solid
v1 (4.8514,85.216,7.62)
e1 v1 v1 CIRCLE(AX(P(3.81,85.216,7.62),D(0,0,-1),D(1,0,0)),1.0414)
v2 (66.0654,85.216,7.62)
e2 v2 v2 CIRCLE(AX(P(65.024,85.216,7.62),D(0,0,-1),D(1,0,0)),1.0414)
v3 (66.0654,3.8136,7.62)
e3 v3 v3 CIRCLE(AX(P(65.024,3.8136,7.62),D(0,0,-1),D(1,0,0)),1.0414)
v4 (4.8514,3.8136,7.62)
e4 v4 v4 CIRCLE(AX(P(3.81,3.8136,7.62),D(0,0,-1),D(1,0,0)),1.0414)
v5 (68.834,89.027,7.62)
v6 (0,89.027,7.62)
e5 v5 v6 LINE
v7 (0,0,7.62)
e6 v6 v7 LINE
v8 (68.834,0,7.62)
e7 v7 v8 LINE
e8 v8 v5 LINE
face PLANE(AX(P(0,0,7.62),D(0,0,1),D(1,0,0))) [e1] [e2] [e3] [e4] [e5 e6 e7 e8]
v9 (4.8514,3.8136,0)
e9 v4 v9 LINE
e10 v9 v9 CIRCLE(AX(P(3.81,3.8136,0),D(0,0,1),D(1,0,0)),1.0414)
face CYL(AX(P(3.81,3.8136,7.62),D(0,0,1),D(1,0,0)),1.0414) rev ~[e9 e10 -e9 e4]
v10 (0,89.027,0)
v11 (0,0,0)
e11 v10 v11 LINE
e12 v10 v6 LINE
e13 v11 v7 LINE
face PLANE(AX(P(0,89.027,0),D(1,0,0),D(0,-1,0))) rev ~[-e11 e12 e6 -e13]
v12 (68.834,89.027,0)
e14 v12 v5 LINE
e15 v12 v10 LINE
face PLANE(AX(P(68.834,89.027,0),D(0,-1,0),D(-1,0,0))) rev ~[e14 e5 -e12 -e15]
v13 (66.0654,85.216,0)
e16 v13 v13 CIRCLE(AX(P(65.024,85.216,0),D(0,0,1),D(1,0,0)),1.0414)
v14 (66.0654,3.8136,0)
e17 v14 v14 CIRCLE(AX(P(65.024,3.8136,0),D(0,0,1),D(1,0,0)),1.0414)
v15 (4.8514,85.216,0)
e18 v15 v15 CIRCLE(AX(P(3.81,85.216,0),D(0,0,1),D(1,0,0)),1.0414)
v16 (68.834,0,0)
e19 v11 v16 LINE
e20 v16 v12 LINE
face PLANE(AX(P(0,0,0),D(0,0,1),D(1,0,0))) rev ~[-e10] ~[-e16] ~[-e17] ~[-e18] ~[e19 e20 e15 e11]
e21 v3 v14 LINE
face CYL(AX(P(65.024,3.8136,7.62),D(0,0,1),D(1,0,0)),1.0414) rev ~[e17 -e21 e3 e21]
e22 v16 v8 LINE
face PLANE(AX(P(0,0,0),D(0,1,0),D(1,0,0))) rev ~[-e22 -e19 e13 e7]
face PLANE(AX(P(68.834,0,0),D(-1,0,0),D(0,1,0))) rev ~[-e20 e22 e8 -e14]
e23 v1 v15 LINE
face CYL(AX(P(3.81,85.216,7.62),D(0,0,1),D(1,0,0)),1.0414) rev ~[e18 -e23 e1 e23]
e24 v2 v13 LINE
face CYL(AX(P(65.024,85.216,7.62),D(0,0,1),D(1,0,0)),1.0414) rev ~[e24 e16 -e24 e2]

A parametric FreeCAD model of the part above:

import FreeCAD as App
import Part
import Sketcher

V = App.Vector
Q = App.Units.Quantity


def add_polygon(sketch, points):
    """Adds a closed chain of lines whose ends are joined by coincident constraints."""
    first, n = sketch.GeometryCount, len(points)
    for a, b in zip(points, points[1:] + points[:1]):
        sketch.addGeometry(Part.LineSegment(App.Vector(*a, 0), App.Vector(*b, 0)), False)
    for i in range(n):
        sketch.addConstraint(Sketcher.Constraint("Coincident", first + i, 2, first + (i + 1) % n, 1))

doc = App.newDocument("Part")
body = doc.addObject("PartDesign::Body", "Body")

# Sketch on XY plane
sketch1 = body.newObject("Sketcher::SketchObject", "Sketch")
sketch1.AttachmentSupport = (doc.getObject("XY_Plane"), [""])
sketch1.MapMode = "FlatFace"
add_polygon(sketch1, [(0, 89.027), (0, 0), (68.834, 0), (68.834, 89.027)])  # lines 0-3
sketch1.addConstraint([
    Sketcher.Constraint("Vertical", 0),
    Sketcher.Constraint("Horizontal", 1),
    Sketcher.Constraint("Vertical", 2),
    Sketcher.Constraint("Horizontal", 3),
    Sketcher.Constraint("Coincident", 0, 2, -1, 1),
    Sketcher.Constraint("DistanceX", 1, 1, 1, 2, Q("2.71 in")),
    Sketcher.Constraint("DistanceY", 0, 2, 0, 1, Q("3.505 in")),
])
pad1 = body.newObject("PartDesign::Pad", "Pad")
pad1.Profile = sketch1
pad1.Length = Q("0.3 in")

# Sketch on XY plane
sketch2 = body.newObject("Sketcher::SketchObject", "Sketch001")
sketch2.AttachmentSupport = (doc.getObject("XY_Plane"), [""])
sketch2.MapMode = "FlatFace"
sketch2.AttachmentOffset = App.Placement(V(0, 0, 0.3 * 25.4), App.Rotation())
sketch2.addGeometry(Part.Circle(V(3.81, 85.216, 0), V(0, 0, 1), 1.0414), False)
sketch2.addConstraint([
    Sketcher.Constraint("Diameter", 0, Q("0.082 in")),
    Sketcher.Constraint("DistanceX", -1, 1, 0, 3, Q("0.15 in")),
    Sketcher.Constraint("DistanceY", -1, 1, 0, 3, 85.216),
])
pocket1 = body.newObject("PartDesign::Pocket", "Pocket")
pocket1.Profile = sketch2
pocket1.Length = Q("0.3 in")

# Sketch on XY plane
sketch3 = body.newObject("Sketcher::SketchObject", "Sketch002")
sketch3.AttachmentSupport = (doc.getObject("XY_Plane"), [""])
sketch3.MapMode = "FlatFace"
sketch3.AttachmentOffset = App.Placement(V(0, 0, 0.3 * 25.4), App.Rotation())
sketch3.addGeometry(Part.Circle(V(65.024, 85.216, 0), V(0, 0, 1), 1.0414), False)
sketch3.addConstraint([
    Sketcher.Constraint("Diameter", 0, Q("0.082 in")),
    Sketcher.Constraint("DistanceX", -1, 1, 0, 3, Q("2.56 in")),
    Sketcher.Constraint("DistanceY", -1, 1, 0, 3, 85.216),
])
pocket2 = body.newObject("PartDesign::Pocket", "Pocket001")
pocket2.Profile = sketch3
pocket2.Length = Q("0.3 in")

# Sketch on XY plane
sketch4 = body.newObject("Sketcher::SketchObject", "Sketch003")
sketch4.AttachmentSupport = (doc.getObject("XY_Plane"), [""])
sketch4.MapMode = "FlatFace"
sketch4.AttachmentOffset = App.Placement(V(0, 0, 0.3 * 25.4), App.Rotation())
sketch4.addGeometry(Part.Circle(V(65.024, 3.8136, 0), V(0, 0, 1), 1.0414), False)
sketch4.addConstraint([
    Sketcher.Constraint("Diameter", 0, Q("0.082 in")),
    Sketcher.Constraint("DistanceX", -1, 1, 0, 3, Q("2.56 in")),
    Sketcher.Constraint("DistanceY", -1, 1, 0, 3, 3.8136),
])
pocket3 = body.newObject("PartDesign::Pocket", "Pocket002")
pocket3.Profile = sketch4
pocket3.Length = Q("0.3 in")

# Sketch on XY plane
sketch5 = body.newObject("Sketcher::SketchObject", "Sketch004")
sketch5.AttachmentSupport = (doc.getObject("XY_Plane"), [""])
sketch5.MapMode = "FlatFace"
sketch5.AttachmentOffset = App.Placement(V(0, 0, 0.3 * 25.4), App.Rotation())
sketch5.addGeometry(Part.Circle(V(3.81, 3.8136, 0), V(0, 0, 1), 1.0414), False)
sketch5.addConstraint([
    Sketcher.Constraint("Diameter", 0, Q("0.082 in")),
    Sketcher.Constraint("DistanceX", -1, 1, 0, 3, Q("0.15 in")),
    Sketcher.Constraint("DistanceY", -1, 1, 0, 3, 3.8136),
])
pocket4 = body.newObject("PartDesign::Pocket", "Pocket003")
pocket4.Profile = sketch5
pocket4.Length = Q("0.3 in")

doc.recompute()
